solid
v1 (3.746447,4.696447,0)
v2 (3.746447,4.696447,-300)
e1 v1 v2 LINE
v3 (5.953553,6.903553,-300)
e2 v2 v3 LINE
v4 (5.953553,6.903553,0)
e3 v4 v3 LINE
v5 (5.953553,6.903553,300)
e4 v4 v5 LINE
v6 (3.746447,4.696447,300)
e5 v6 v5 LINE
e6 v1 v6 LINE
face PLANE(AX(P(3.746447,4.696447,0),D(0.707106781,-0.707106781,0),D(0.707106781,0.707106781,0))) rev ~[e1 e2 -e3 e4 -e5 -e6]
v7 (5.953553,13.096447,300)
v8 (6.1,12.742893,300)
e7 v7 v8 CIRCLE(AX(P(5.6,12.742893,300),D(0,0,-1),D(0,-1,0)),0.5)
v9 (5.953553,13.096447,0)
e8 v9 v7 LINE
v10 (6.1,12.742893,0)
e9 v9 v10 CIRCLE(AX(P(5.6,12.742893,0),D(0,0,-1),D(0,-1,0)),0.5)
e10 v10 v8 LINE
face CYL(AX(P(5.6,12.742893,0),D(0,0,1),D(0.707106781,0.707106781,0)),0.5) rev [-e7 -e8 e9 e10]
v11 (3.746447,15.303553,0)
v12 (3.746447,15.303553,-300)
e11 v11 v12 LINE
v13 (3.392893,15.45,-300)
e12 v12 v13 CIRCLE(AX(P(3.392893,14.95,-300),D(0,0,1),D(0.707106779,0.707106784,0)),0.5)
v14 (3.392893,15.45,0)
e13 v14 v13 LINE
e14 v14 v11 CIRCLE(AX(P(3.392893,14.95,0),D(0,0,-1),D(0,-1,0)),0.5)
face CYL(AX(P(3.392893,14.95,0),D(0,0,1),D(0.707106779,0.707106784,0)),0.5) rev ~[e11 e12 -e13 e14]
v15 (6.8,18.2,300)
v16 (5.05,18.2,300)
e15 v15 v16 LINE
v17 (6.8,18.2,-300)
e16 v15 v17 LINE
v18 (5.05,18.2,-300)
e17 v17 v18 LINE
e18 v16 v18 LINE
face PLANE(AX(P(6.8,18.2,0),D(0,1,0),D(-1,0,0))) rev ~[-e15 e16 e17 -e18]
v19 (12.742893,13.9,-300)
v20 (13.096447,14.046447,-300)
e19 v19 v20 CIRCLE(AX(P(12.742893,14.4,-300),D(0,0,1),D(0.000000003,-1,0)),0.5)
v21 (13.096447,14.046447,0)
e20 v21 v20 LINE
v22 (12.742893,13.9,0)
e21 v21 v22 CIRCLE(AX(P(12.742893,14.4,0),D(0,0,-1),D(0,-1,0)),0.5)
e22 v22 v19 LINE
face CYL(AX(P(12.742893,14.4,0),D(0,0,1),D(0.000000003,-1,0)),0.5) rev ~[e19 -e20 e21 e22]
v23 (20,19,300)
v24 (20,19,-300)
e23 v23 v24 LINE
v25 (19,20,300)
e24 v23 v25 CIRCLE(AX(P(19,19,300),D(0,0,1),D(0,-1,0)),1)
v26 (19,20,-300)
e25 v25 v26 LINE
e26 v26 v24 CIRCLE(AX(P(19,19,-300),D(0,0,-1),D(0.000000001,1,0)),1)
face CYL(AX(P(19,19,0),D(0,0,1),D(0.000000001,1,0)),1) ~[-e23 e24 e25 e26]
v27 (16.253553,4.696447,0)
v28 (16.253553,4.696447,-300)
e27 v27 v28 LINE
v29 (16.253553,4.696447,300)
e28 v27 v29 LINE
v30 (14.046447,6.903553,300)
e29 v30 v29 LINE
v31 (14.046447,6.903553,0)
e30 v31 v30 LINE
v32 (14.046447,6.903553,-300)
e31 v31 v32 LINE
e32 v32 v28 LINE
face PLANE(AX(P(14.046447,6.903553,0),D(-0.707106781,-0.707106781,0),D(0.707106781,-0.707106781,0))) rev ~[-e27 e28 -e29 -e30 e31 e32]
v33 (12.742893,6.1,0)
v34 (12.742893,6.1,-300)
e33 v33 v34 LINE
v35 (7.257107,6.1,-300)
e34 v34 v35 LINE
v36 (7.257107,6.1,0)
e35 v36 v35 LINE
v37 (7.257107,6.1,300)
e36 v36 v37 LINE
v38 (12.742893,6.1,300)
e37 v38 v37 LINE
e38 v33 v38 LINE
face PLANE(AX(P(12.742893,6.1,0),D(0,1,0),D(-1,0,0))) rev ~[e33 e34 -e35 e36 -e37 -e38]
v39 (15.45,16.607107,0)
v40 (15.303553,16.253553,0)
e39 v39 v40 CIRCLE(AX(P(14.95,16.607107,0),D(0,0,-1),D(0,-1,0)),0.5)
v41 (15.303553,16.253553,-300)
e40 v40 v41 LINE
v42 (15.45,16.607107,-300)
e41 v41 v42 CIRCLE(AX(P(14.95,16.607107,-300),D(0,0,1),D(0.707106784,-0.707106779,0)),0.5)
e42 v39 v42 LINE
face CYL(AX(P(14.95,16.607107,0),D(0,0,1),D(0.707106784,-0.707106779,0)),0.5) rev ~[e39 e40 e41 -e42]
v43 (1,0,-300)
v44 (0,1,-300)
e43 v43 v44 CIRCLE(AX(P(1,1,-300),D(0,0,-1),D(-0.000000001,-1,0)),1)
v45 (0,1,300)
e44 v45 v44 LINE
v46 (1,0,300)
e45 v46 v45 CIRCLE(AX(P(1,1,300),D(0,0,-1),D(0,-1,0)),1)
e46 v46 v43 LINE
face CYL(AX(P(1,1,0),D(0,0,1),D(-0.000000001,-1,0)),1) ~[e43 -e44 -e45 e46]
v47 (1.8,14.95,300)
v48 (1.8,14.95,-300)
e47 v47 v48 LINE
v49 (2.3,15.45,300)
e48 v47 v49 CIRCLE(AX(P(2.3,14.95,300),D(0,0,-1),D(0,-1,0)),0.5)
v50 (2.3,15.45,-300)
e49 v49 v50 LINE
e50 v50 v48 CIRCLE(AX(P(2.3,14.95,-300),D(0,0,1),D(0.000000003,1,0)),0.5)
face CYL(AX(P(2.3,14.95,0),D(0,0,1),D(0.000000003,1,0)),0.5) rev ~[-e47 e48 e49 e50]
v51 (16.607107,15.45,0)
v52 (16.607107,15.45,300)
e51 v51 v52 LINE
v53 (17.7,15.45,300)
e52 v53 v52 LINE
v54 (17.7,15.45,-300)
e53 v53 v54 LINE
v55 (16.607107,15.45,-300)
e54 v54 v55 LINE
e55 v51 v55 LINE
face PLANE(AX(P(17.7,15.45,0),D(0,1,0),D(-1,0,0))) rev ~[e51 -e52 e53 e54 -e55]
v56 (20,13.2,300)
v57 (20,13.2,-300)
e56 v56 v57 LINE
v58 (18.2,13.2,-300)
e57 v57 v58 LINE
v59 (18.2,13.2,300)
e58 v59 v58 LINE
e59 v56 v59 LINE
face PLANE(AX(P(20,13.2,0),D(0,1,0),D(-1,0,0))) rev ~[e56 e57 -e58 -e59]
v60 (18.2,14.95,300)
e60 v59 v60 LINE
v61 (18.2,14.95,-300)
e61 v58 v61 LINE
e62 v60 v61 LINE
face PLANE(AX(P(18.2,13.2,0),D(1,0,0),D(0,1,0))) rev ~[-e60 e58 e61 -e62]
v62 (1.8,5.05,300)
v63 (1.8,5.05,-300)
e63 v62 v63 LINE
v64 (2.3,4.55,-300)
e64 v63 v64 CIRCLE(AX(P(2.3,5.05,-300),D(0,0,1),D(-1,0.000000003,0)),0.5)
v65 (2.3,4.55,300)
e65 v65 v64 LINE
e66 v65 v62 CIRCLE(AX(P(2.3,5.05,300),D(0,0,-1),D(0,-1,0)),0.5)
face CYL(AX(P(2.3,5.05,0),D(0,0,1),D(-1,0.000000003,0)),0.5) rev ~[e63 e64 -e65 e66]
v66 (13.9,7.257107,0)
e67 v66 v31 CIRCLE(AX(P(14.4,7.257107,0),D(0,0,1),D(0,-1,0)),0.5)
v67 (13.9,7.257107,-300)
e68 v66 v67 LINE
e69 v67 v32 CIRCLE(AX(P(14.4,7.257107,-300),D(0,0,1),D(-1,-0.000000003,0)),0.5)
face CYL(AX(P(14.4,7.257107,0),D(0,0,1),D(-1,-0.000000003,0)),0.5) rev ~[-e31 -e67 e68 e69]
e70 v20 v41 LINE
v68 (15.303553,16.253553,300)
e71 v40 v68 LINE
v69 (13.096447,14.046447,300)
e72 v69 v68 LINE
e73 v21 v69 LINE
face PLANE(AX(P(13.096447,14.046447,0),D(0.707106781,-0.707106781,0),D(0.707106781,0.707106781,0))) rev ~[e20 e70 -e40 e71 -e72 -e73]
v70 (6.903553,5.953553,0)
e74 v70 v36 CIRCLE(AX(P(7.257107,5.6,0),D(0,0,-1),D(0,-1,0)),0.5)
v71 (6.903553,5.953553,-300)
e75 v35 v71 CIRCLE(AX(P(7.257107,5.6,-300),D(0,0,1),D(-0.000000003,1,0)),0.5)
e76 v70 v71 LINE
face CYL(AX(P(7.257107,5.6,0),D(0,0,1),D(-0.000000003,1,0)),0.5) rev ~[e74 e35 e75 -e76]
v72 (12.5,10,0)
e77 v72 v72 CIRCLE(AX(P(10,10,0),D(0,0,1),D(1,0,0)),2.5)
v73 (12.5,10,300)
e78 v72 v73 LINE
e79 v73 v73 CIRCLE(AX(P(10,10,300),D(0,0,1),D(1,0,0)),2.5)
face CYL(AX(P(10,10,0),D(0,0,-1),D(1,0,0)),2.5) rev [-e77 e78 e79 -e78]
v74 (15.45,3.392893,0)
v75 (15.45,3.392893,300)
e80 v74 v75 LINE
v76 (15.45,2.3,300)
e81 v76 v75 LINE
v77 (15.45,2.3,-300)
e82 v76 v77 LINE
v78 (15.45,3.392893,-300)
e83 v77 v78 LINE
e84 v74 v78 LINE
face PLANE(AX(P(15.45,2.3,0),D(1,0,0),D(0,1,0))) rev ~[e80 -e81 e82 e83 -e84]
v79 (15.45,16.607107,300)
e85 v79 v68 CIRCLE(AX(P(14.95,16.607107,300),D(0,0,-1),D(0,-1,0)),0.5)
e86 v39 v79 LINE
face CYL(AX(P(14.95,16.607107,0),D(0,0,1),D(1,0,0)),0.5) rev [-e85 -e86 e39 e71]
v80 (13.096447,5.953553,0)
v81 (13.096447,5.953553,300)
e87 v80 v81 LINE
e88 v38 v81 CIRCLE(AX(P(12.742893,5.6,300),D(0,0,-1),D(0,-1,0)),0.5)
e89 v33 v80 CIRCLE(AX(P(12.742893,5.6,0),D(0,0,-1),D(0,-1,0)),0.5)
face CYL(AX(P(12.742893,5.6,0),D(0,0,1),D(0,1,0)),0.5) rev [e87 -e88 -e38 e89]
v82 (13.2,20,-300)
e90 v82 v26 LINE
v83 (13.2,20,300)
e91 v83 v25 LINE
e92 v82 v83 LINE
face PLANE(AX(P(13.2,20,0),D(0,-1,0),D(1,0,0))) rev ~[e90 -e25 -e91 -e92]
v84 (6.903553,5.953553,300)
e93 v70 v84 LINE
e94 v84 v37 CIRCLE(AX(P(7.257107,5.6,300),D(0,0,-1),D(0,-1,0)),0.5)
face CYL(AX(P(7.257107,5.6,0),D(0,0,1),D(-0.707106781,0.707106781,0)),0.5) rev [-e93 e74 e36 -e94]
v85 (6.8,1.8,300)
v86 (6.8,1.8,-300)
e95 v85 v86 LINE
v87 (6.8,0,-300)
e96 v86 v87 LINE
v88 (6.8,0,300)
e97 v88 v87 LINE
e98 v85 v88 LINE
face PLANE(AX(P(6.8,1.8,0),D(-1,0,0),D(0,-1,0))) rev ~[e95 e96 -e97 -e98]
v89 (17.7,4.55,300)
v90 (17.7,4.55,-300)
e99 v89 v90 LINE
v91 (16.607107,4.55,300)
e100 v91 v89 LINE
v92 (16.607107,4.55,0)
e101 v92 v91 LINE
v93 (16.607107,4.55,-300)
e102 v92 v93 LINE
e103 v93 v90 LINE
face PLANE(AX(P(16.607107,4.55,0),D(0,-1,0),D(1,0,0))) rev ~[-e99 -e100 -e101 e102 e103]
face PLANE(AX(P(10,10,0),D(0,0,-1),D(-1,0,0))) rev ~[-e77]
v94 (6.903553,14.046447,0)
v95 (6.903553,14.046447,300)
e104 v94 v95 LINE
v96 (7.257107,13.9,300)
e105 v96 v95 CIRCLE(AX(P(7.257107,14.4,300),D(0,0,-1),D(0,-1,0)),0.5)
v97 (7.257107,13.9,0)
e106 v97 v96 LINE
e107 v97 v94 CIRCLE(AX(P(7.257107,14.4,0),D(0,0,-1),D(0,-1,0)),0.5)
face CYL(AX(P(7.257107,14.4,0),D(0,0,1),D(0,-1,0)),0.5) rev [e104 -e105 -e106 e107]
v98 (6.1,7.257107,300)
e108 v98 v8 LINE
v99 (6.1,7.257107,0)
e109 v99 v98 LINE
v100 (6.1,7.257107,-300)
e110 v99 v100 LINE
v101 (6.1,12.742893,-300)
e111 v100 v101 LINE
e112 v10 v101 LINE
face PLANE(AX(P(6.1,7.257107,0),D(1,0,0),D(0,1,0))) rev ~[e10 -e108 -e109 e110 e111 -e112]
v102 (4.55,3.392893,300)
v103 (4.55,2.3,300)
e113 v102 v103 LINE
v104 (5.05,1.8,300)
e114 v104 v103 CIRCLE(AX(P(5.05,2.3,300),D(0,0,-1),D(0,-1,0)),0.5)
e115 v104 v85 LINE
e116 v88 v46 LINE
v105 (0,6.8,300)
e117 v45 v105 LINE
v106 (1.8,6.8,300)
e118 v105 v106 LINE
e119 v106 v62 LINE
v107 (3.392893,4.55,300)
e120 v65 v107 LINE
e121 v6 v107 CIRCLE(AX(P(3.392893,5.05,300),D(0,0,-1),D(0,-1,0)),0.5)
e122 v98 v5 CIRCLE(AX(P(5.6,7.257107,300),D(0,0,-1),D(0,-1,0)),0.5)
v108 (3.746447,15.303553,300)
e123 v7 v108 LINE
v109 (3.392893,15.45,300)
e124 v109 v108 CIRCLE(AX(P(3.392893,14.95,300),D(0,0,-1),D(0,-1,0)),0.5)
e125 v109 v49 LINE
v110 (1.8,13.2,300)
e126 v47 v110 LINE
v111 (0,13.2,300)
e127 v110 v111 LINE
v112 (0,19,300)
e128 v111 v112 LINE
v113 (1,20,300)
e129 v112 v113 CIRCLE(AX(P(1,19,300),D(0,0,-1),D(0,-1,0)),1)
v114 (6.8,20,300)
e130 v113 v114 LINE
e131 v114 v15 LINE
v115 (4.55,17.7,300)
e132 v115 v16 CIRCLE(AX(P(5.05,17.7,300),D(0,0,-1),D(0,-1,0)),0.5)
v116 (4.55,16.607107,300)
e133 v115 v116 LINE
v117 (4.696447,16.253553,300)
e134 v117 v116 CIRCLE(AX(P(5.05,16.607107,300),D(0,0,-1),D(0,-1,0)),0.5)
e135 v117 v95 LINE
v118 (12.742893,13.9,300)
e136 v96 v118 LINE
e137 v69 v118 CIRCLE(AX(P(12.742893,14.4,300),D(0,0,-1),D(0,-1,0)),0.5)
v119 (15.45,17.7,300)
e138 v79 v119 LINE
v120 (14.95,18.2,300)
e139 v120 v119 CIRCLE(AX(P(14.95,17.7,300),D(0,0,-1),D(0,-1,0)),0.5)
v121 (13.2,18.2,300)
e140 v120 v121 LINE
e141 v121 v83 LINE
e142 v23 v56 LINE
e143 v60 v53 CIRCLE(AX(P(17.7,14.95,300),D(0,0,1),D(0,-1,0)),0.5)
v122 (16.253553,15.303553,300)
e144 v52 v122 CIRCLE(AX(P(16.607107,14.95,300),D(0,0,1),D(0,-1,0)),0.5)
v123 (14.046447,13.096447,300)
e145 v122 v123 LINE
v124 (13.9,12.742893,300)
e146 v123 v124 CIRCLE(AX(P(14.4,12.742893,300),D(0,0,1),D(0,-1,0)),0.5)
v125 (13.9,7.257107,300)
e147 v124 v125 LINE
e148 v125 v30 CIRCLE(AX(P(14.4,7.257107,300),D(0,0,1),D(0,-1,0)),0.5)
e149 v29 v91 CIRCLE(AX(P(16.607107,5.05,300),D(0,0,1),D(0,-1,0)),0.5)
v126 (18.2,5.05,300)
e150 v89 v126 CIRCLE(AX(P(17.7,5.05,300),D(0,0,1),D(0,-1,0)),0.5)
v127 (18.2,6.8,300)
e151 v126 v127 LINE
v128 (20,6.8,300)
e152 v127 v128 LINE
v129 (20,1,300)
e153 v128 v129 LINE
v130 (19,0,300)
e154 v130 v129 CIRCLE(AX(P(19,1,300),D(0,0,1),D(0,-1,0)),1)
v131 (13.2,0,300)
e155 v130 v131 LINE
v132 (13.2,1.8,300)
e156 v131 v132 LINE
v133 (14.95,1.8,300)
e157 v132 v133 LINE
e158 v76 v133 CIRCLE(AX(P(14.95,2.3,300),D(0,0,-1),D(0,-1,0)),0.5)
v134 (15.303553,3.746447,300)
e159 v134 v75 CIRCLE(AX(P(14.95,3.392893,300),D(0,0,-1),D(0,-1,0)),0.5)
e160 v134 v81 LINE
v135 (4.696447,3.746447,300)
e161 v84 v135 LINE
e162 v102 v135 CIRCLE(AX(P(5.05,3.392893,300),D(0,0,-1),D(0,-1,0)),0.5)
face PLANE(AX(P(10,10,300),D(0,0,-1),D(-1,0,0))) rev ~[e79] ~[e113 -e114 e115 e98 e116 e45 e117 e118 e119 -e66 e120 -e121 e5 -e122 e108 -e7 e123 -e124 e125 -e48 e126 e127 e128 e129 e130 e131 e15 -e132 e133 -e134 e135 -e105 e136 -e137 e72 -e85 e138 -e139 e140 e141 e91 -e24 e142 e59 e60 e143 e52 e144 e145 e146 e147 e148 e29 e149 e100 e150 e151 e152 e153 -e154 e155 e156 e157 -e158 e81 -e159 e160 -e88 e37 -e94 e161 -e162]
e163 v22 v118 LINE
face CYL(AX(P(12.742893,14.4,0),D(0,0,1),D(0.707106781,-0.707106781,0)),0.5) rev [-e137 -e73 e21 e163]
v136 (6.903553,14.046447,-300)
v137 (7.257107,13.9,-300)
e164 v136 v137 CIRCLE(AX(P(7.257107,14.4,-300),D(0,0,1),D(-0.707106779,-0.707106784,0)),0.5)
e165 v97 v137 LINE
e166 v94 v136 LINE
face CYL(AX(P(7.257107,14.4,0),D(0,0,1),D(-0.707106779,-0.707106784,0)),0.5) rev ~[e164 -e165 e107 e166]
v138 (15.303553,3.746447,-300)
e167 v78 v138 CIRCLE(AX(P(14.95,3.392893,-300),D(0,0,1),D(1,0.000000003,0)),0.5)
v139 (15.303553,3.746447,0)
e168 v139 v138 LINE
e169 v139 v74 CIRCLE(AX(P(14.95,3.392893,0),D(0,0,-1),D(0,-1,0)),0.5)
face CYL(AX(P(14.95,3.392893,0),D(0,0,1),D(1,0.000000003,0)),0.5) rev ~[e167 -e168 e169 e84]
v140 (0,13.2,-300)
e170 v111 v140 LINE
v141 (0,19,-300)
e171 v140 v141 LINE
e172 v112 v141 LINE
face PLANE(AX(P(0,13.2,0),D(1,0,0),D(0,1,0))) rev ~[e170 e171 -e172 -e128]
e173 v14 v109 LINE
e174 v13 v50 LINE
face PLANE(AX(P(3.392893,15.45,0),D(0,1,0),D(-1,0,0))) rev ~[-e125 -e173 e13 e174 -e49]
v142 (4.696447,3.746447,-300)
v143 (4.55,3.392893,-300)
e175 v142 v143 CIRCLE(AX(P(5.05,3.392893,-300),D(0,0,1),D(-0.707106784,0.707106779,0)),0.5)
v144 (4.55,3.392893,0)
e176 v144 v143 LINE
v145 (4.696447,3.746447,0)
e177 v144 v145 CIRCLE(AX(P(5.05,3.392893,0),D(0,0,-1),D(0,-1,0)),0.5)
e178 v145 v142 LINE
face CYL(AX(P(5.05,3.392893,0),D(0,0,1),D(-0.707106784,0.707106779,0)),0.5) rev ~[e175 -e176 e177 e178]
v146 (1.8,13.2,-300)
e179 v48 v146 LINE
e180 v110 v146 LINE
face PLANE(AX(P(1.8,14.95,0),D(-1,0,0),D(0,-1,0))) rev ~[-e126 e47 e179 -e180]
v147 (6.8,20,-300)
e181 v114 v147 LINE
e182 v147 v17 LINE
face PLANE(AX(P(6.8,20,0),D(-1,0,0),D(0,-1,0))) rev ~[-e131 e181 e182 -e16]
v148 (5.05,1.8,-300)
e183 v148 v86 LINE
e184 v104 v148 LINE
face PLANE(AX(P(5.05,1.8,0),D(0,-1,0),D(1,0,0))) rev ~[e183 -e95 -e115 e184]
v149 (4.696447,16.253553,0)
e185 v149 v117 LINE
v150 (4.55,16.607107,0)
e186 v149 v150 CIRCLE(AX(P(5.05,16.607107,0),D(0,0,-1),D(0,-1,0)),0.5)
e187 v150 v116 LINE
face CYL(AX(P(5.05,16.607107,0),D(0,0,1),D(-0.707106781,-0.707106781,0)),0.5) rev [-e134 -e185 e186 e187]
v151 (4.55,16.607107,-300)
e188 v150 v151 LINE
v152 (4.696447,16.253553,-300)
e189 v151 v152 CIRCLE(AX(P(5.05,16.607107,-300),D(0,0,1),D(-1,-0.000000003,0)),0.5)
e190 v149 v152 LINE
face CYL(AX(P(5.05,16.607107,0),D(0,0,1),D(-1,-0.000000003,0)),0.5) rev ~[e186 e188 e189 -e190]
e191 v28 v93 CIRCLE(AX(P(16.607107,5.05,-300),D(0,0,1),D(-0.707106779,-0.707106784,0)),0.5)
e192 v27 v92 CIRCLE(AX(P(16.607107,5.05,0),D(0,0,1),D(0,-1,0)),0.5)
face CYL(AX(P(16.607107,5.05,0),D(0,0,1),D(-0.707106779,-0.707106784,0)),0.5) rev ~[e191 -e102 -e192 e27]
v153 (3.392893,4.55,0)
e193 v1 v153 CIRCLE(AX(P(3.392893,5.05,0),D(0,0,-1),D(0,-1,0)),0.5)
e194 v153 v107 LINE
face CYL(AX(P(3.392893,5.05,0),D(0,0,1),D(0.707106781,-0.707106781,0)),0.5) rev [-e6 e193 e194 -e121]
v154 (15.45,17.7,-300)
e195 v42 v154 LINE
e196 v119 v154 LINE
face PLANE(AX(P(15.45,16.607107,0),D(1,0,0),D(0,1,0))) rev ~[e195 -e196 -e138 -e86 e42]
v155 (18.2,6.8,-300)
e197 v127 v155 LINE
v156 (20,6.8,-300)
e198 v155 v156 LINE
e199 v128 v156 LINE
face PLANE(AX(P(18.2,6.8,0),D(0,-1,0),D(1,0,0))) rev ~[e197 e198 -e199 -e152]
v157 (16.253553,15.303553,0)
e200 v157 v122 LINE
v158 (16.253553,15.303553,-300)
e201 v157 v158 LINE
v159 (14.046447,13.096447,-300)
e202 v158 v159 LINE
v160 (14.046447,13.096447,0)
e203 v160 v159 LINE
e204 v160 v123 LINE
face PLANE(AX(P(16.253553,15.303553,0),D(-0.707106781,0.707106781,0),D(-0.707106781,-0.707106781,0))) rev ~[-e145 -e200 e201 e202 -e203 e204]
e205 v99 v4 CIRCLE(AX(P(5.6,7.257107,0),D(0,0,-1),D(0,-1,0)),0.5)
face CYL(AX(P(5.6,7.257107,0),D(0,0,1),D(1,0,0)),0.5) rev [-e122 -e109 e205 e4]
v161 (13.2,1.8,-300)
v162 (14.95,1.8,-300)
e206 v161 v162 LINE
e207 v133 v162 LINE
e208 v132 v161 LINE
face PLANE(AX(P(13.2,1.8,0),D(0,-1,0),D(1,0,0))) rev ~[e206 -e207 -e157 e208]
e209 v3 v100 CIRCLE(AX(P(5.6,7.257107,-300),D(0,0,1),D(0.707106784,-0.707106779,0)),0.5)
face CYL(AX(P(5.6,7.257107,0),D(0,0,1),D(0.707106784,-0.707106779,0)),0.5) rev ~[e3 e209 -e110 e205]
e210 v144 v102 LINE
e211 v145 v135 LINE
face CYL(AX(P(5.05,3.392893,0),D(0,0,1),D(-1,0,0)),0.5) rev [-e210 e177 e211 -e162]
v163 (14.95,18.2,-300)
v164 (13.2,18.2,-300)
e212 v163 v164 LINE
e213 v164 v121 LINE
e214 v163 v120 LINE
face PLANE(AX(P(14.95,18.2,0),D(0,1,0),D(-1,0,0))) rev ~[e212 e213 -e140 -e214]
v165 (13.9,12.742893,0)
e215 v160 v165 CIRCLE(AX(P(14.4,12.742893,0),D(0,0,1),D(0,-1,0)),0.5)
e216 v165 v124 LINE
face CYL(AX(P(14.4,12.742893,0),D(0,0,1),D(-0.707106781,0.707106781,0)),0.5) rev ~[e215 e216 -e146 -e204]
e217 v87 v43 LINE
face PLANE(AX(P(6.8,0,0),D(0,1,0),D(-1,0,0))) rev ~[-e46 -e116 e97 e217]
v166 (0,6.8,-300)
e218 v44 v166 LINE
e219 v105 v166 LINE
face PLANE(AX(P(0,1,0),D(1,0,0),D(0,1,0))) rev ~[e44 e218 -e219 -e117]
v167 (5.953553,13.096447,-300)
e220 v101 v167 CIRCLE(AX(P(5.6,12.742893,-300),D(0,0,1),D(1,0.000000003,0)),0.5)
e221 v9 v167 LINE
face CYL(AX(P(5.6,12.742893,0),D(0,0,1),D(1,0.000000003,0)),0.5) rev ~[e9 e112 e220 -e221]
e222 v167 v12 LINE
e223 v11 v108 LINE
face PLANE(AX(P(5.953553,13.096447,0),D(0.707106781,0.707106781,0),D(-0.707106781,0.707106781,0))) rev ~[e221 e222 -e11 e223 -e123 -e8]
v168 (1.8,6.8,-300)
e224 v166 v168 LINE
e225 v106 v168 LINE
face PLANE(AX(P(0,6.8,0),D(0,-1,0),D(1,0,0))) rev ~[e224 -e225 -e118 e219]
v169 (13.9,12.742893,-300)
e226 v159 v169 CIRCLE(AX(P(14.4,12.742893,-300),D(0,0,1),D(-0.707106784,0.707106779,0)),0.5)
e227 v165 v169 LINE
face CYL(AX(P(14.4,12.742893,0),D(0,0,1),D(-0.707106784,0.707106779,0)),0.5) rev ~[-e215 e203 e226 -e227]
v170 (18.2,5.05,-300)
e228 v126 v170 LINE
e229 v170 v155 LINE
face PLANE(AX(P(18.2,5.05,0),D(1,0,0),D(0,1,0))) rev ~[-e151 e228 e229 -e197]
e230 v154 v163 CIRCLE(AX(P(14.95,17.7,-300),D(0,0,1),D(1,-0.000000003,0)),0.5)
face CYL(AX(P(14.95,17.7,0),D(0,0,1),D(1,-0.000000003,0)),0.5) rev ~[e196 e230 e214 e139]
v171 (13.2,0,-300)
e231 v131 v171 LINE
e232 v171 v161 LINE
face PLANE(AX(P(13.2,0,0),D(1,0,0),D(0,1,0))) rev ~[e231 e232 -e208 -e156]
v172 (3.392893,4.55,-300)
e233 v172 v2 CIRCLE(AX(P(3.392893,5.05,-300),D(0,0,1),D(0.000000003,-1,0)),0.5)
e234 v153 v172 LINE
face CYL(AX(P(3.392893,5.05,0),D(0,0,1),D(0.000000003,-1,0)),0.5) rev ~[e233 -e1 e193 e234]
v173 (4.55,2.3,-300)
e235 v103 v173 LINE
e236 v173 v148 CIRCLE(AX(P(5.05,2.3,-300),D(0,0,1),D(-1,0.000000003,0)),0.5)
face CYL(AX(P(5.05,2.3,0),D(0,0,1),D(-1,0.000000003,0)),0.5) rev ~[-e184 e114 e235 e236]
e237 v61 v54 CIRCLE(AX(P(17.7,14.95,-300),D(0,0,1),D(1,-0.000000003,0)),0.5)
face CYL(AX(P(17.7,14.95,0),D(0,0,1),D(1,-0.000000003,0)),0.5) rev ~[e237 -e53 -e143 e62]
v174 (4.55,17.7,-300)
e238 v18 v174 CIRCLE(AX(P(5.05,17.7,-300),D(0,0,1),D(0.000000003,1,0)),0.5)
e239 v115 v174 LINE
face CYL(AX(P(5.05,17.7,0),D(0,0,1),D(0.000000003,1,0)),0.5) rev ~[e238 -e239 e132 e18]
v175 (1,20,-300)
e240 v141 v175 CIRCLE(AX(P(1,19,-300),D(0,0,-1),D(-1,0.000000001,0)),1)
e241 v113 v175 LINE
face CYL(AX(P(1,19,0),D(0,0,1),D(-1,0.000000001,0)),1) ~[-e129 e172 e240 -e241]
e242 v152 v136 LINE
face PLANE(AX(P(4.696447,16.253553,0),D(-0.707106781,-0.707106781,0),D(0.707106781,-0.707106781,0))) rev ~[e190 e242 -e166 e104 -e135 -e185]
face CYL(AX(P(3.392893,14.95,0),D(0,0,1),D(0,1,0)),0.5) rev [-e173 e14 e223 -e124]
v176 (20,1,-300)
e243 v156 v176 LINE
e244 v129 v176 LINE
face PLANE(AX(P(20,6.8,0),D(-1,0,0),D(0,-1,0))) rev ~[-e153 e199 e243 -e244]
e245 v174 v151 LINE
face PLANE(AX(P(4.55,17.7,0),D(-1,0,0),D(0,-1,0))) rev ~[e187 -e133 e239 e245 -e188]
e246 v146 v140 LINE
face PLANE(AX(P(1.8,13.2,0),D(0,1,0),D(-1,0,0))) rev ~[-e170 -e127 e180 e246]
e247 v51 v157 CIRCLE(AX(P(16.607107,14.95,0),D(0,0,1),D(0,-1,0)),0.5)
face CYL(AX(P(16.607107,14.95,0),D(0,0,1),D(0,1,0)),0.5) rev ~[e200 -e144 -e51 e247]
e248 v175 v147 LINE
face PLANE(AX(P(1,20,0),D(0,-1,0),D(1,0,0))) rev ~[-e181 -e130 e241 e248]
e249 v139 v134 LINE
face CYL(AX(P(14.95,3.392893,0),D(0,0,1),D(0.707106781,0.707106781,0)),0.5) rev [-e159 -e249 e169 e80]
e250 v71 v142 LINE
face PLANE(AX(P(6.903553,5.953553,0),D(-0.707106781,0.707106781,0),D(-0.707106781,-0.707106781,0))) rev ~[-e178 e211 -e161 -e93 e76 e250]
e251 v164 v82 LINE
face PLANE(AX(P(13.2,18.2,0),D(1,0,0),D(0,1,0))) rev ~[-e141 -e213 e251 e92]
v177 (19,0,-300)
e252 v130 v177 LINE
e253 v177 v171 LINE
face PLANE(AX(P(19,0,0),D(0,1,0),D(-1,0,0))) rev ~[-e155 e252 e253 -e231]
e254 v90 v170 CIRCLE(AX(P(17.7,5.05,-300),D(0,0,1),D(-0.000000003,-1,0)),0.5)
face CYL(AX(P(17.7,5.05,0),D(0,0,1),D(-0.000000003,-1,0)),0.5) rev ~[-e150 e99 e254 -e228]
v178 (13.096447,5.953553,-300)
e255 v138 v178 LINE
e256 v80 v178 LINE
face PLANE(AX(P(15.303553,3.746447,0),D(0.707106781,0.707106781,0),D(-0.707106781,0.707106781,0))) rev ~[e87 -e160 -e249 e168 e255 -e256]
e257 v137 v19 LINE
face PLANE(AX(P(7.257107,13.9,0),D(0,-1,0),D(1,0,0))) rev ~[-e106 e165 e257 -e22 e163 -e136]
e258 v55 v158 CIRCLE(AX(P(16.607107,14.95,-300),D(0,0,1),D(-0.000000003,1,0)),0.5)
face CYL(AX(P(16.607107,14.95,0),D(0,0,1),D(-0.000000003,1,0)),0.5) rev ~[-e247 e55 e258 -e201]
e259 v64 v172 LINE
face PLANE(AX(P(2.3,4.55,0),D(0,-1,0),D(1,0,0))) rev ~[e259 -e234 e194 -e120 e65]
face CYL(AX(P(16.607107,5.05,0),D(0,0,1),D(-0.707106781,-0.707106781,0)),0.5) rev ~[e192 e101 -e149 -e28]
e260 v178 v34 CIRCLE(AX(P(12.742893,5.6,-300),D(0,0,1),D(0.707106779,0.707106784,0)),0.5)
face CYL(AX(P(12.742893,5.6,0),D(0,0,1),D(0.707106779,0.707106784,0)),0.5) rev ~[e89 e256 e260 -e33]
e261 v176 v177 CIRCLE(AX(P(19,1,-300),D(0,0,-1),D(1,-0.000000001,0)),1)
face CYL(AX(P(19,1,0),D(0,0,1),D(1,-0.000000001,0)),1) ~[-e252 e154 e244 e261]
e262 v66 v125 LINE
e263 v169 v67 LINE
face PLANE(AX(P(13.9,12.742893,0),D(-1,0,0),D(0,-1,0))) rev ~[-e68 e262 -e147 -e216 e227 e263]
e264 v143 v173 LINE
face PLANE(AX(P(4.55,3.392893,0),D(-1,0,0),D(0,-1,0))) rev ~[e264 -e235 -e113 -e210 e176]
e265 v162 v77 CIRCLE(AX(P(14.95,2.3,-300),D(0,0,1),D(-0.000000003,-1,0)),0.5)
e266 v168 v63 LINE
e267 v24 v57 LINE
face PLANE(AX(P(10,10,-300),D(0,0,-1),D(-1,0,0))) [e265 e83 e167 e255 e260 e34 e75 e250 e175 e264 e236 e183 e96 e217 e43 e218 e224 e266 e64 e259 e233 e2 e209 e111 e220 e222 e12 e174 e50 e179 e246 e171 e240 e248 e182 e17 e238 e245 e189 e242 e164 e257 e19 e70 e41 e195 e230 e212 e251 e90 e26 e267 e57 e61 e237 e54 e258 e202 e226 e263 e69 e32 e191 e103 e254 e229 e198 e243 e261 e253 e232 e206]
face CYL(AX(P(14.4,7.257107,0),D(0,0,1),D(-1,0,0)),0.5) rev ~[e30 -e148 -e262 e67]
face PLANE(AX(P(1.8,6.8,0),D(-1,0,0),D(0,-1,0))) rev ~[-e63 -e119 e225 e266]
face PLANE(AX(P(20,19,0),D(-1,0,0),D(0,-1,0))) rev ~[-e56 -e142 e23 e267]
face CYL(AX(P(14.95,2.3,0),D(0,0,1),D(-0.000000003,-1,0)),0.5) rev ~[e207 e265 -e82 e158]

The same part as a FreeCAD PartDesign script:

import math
import FreeCAD as App
import Part
import Sketcher
from FreeCAD import Vector
Q = App.Units.Quantity


def edges_at(feature, points):
    """Names of the edges that pass closest to the given points."""
    edges = feature.Shape.Edges
    near = lambda p: min(range(len(edges)), key=lambda i: edges[i].distToShape(Part.Vertex(*p))[0])
    return sorted({f"Edge{near(p) + 1}" for p in points})


def add_polygon(sketch, points):
    """Adds a closed chain of lines whose ends are joined by coincident constraints."""
    first, n = sketch.GeometryCount, len(points)
    for a, b in zip(points, points[1:] + points[:1]):
        sketch.addGeometry(Part.LineSegment(App.Vector(*a, 0), App.Vector(*b, 0)), False)
    for i in range(n):
        sketch.addConstraint(Sketcher.Constraint("Coincident", first + i, 2, first + (i + 1) % n, 1))

doc = App.newDocument("Part")
body = doc.addObject("PartDesign::Body", "Body")

sketch1 = body.newObject("Sketcher::SketchObject", "Sketch")
sketch1.AttachmentSupport = (doc.getObject("XY_Plane"), [""])
sketch1.MapMode = "FlatFace"
add_polygon(sketch1, [(13.2, 1.8), (13.2, 0), (20, 0), (20, 6.8), (18.2, 6.8), (18.2, 4.5), (16.4, 4.5), (13.9, 7), (13.9, 12.9), (16.4, 15.4), (18.2, 15.4), (18.2, 13.2), (20, 13.2), (20, 20), (13.2, 20), (13.2, 18.2), (15.4, 18.2), (15.4, 16.4), (12.9, 13.9), (7, 13.9), (4.5, 16.4), (4.5, 18.2), (6.8, 18.2), (6.8, 20), (0, 20), (0, 13.2), (1.8, 13.2), (1.8, 15.4), (3.6, 15.4), (6.1, 12.9), (6.1, 7), (3.6, 4.5), (1.8, 4.5), (1.8, 6.8), (0, 6.8), (0, 0), (6.8, 0), (6.8, 1.8), (4.5, 1.8), (4.5, 3.6), (7, 6.1), (12.9, 6.1), (15.4, 3.6), (15.4, 1.8)])
sketch1.addGeometry(Part.Circle(Vector(10, 10, 0), Vector(0, 0, 1), 2.5), False)
sketch1.addConstraint([
    Sketcher.Constraint("Vertical", 0),
    Sketcher.Constraint("Horizontal", 1),
    Sketcher.Constraint("Vertical", 2),
    Sketcher.Constraint("Horizontal", 3),
    Sketcher.Constraint("Vertical", 4),
    Sketcher.Constraint("Horizontal", 5),
    Sketcher.Constraint("Vertical", 7),
    Sketcher.Constraint("Horizontal", 9),
    Sketcher.Constraint("Vertical", 10),
    Sketcher.Constraint("Horizontal", 11),
    Sketcher.Constraint("Vertical", 12),
    Sketcher.Constraint("Horizontal", 13),
    Sketcher.Constraint("Vertical", 14),
    Sketcher.Constraint("Horizontal", 15),
    Sketcher.Constraint("Vertical", 16),
    Sketcher.Constraint("Horizontal", 18),
    Sketcher.Constraint("Vertical", 20),
    Sketcher.Constraint("Horizontal", 21),
    Sketcher.Constraint("Vertical", 22),
    Sketcher.Constraint("Horizontal", 23),
    Sketcher.Constraint("Vertical", 24),
    Sketcher.Constraint("Horizontal", 25),
    Sketcher.Constraint("Vertical", 26),
    Sketcher.Constraint("Horizontal", 27),
    Sketcher.Constraint("Vertical", 29),
    Sketcher.Constraint("Horizontal", 31),
    Sketcher.Constraint("Vertical", 32),
    Sketcher.Constraint("Horizontal", 33),
    Sketcher.Constraint("Vertical", 34),
    Sketcher.Constraint("Horizontal", 35),
    Sketcher.Constraint("Vertical", 36),
    Sketcher.Constraint("Horizontal", 37),
    Sketcher.Constraint("Vertical", 38),
    Sketcher.Constraint("Horizontal", 40),
    Sketcher.Constraint("Vertical", 42),
    Sketcher.Constraint("Horizontal", 43),
    Sketcher.Constraint("Coincident", 34, 2, -1, 1),
    Sketcher.Constraint("PointOnObject", 0, 2, -1),
    Sketcher.Constraint("PointOnObject", 23, 2, -2),
    Sketcher.Constraint("Perpendicular", 6, 8),
    Sketcher.Constraint("Parallel", 8, 17),
    Sketcher.Constraint("Perpendicular", 17, 19),
    Sketcher.Constraint("Parallel", 19, 28),
    Sketcher.Constraint("Perpendicular", 28, 30),
    Sketcher.Constraint("Parallel", 30, 39),
    Sketcher.Constraint("Perpendicular", 39, 41),
    Sketcher.Constraint("Horizontal", 16, 2, 19, 2),
    Sketcher.Constraint("Horizontal", 15, 2, 20, 2),
    Sketcher.Constraint("Horizontal", 13, 2, 22, 2),
    Sketcher.Constraint("Horizontal", 11, 2, 24, 2),
    Sketcher.Constraint("Horizontal", 9, 2, 26, 2),
    Sketcher.Constraint("Horizontal", 7, 2, 28, 2),
    Sketcher.Constraint("Horizontal", 6, 2, 29, 2),
    Sketcher.Constraint("Horizontal", 5, 2, 30, 2),
    Sketcher.Constraint("Horizontal", 3, 2, 32, 2),
    Sketcher.Constraint("Horizontal", 38, 2, 41, 2),
    Sketcher.Constraint("Horizontal", 37, 2, 42, 2),
    Sketcher.Constraint("Vertical", 5, 2, 8, 2),
    Sketcher.Constraint("Vertical", 4, 2, 9, 2),
    Sketcher.Constraint("Vertical", 2, 2, 11, 2),
    Sketcher.Constraint("Vertical", 0, 2, 13, 2),
    Sketcher.Constraint("Vertical", 27, 2, 30, 2),
    Sketcher.Constraint("Vertical", 26, 2, 31, 2),
    Sketcher.Constraint("Vertical", 22, 2, 35, 2),
    Sketcher.Constraint("Vertical", 20, 2, 37, 2),
    Sketcher.Constraint("Vertical", 18, 2, 39, 2),
    Sketcher.Constraint("Vertical", 17, 2, 40, 2),
    Sketcher.Constraint("Equal", 3, 5),
    Sketcher.Constraint("Equal", 15, 21),
    Sketcher.Constraint("Equal", 13, 23),
    Sketcher.Constraint("Equal", 11, 25),
    Sketcher.Constraint("Equal", 25, 27),
    Sketcher.Constraint("Equal", 33, 0),
    Sketcher.Constraint("Equal", 35, 2),
    Sketcher.Constraint("Equal", 43, 4),
    Sketcher.Constraint("Equal", 40, 7),
    Sketcher.Constraint("Equal", 4, 10),
    Sketcher.Constraint("Equal", 2, 12),
    Sketcher.Constraint("Equal", 0, 14),
    Sketcher.Constraint("Equal", 14, 16),
    Sketcher.Constraint("Equal", 36, 38),
    Sketcher.Constraint("Equal", 8, 17),
    Sketcher.Constraint("Diameter", 44, Q("5 mm")),
    Sketcher.Constraint("DistanceX", 1, 1, 1, 2, Q("6.8 mm")),
    Sketcher.Constraint("DistanceX", 3, 2, 3, 1, Q("1.8 mm")),
    Sketcher.Constraint("DistanceX", 18, 2, 18, 1, Q("5.9 mm")),
    Sketcher.Constraint("DistanceX", -1, 1, 44, 3, Q("10 mm")),
    Sketcher.Constraint("DistanceY", -1, 1, 44, 3, Q("10 mm")),
    Sketcher.Constraint("DistanceX", -1, 1, 1, 2, Q("20 mm")),
    Sketcher.Constraint("DistanceX", 15, 1, 15, 2, Q("2.25 mm")),
])
pad1 = body.newObject("PartDesign::Pad", "Pad")
pad1.Profile = sketch1
pad1.Length = 300
doc.recompute()

fillet = body.newObject("PartDesign::Fillet", "Fillet")
fillet.Base = (pad1, edges_at(pad1, [
    (0, 0, 150),
    (0, 20, 150),
    (20, 20, 150),
    (20, 0, 150),
]))
fillet.Radius = 1
doc.recompute()

fillet2 = body.newObject("PartDesign::Fillet", "Fillet001")
fillet2.Base = (fillet, edges_at(fillet, [
    (4.55, 18.2, 150),
    (4.55, 16.4, 150),
    (7.05, 13.9, 150),
    (12.95, 13.9, 150),
    (15.45, 16.4, 150),
    (15.45, 18.2, 150),
]))
fillet2.Radius = 0.5
doc.recompute()

fillet3 = body.newObject("PartDesign::Fillet", "Fillet002")
fillet3.Base = (fillet2, edges_at(fillet2, [
    (18.2, 15.45, 150),
    (16.4, 15.45, 150),
    (13.9, 12.95, 150),
    (13.9, 7.05, 150),
    (16.4, 4.55, 150),
    (18.2, 4.55, 150),
]))
fillet3.Radius = 0.5
doc.recompute()

fillet4 = body.newObject("PartDesign::Fillet", "Fillet003")
fillet4.Base = (fillet3, edges_at(fillet3, [
    (1.8, 4.55, 150),
    (3.6, 4.55, 150),
    (6.1, 7.05, 150),
    (6.1, 12.95, 150),
    (3.6, 15.45, 150),
    (1.8, 15.45, 150),
]))
fillet4.Radius = 0.5
doc.recompute()

fillet5 = body.newObject("PartDesign::Fillet", "Fillet004")
fillet5.Base = (fillet4, edges_at(fillet4, [
    (15.45, 1.8, 150),
    (15.45, 3.6, 150),
    (12.95, 6.1, 150),
    (7.05, 6.1, 150),
    (4.55, 3.6, 150),
    (4.55, 1.8, 150),
]))
fillet5.Radius = 0.5

sketch2 = body.newObject("Sketcher::SketchObject", "Sketch001")
sketch2.AttachmentSupport = (doc.getObject("XY_Plane"), [""])
sketch2.MapMode = "FlatFace"
sketch2.addGeometry([
    Part.LineSegment(Vector(13.2, 20, 0), Vector(19, 20, 0)),
    Part.ArcOfCircle(Part.Circle(Vector(19, 19, 0), Vector(0, 0, 1), 1), math.radians(0), math.radians(90)),
    Part.LineSegment(Vector(20, 19, 0), Vector(20, 13.2, 0)),
    Part.LineSegment(Vector(20, 13.2, 0), Vector(18.2, 13.2, 0)),
    Part.LineSegment(Vector(18.2, 13.2, 0), Vector(18.2, 14.95, 0)),
    Part.ArcOfCircle(Part.Circle(Vector(17.7, 14.95, 0), Vector(0, 0, 1), 0.5), math.radians(0), math.radians(90)),
    Part.LineSegment(Vector(17.7, 15.45, 0), Vector(16.61, 15.45, 0)),
    Part.ArcOfCircle(Part.Circle(Vector(16.61, 14.95, 0), Vector(0, 0, 1), 0.5), math.radians(90), math.radians(135)),
    Part.LineSegment(Vector(16.25, 15.3, 0), Vector(14.05, 13.1, 0)),
    Part.ArcOfCircle(Part.Circle(Vector(14.4, 12.74, 0), Vector(0, 0, 1), 0.5), math.radians(135), math.radians(180)),
    Part.LineSegment(Vector(13.9, 12.74, 0), Vector(13.9, 7.26, 0)),
    Part.ArcOfCircle(Part.Circle(Vector(14.4, 7.26, 0), Vector(0, 0, 1), 0.5), math.radians(-180), math.radians(-135)),
    Part.LineSegment(Vector(14.05, 6.9, 0), Vector(16.25, 4.7, 0)),
    Part.ArcOfCircle(Part.Circle(Vector(16.61, 5.05, 0), Vector(0, 0, 1), 0.5), math.radians(-135), math.radians(-90)),
    Part.LineSegment(Vector(16.61, 4.55, 0), Vector(17.7, 4.55, 0)),
    Part.ArcOfCircle(Part.Circle(Vector(17.7, 5.05, 0), Vector(0, 0, 1), 0.5), math.radians(-90), math.radians(0)),
    Part.LineSegment(Vector(18.2, 5.05, 0), Vector(18.2, 6.8, 0)),
    Part.LineSegment(Vector(18.2, 6.8, 0), Vector(20, 6.8, 0)),
    Part.LineSegment(Vector(20, 6.8, 0), Vector(20, 1, 0)),
    Part.ArcOfCircle(Part.Circle(Vector(19, 1, 0), Vector(0, 0, 1), 1), math.radians(-90), math.radians(0)),
    Part.LineSegment(Vector(19, 0, 0), Vector(13.2, 0, 0)),
    Part.LineSegment(Vector(13.2, 0, 0), Vector(13.2, 1.8, 0)),
    Part.LineSegment(Vector(13.2, 1.8, 0), Vector(14.95, 1.8, 0)),
    Part.ArcOfCircle(Part.Circle(Vector(14.95, 2.3, 0), Vector(0, 0, 1), 0.5), math.radians(-90), math.radians(0)),
    Part.LineSegment(Vector(15.45, 2.3, 0), Vector(15.45, 3.39, 0)),
    Part.ArcOfCircle(Part.Circle(Vector(14.95, 3.39, 0), Vector(0, 0, 1), 0.5), math.radians(0), math.radians(45)),
    Part.LineSegment(Vector(15.3, 3.75, 0), Vector(13.1, 5.95, 0)),
    Part.ArcOfCircle(Part.Circle(Vector(12.74, 5.6, 0), Vector(0, 0, 1), 0.5), math.radians(45), math.radians(90)),
    Part.LineSegment(Vector(12.74, 6.1, 0), Vector(7.26, 6.1, 0)),
    Part.ArcOfCircle(Part.Circle(Vector(7.26, 5.6, 0), Vector(0, 0, 1), 0.5), math.radians(90), math.radians(135)),
    Part.LineSegment(Vector(6.9, 5.95, 0), Vector(4.7, 3.75, 0)),
    Part.ArcOfCircle(Part.Circle(Vector(5.05, 3.39, 0), Vector(0, 0, 1), 0.5), math.radians(135), math.radians(180)),
    Part.LineSegment(Vector(4.55, 3.39, 0), Vector(4.55, 2.3, 0)),
    Part.ArcOfCircle(Part.Circle(Vector(5.05, 2.3, 0), Vector(0, 0, 1), 0.5), math.radians(180), math.radians(270)),
    Part.LineSegment(Vector(5.05, 1.8, 0), Vector(6.8, 1.8, 0)),
    Part.LineSegment(Vector(6.8, 1.8, 0), Vector(6.8, 0, 0)),
    Part.LineSegment(Vector(6.8, 0, 0), Vector(1, 0, 0)),
    Part.ArcOfCircle(Part.Circle(Vector(1, 1, 0), Vector(0, 0, 1), 1), math.radians(-180), math.radians(-90)),
    Part.LineSegment(Vector(0, 1, 0), Vector(0, 6.8, 0)),
    Part.LineSegment(Vector(0, 6.8, 0), Vector(1.8, 6.8, 0)),
    Part.LineSegment(Vector(1.8, 6.8, 0), Vector(1.8, 5.05, 0)),
    Part.ArcOfCircle(Part.Circle(Vector(2.3, 5.05, 0), Vector(0, 0, 1), 0.5), math.radians(180), math.radians(270)),
    Part.LineSegment(Vector(2.3, 4.55, 0), Vector(3.39, 4.55, 0)),
    Part.ArcOfCircle(Part.Circle(Vector(3.39, 5.05, 0), Vector(0, 0, 1), 0.5), math.radians(-90), math.radians(-45)),
    Part.LineSegment(Vector(3.75, 4.7, 0), Vector(5.95, 6.9, 0)),
    Part.ArcOfCircle(Part.Circle(Vector(5.6, 7.26, 0), Vector(0, 0, 1), 0.5), math.radians(-45), math.radians(0)),
    Part.LineSegment(Vector(6.1, 7.26, 0), Vector(6.1, 12.74, 0)),
    Part.ArcOfCircle(Part.Circle(Vector(5.6, 12.74, 0), Vector(0, 0, 1), 0.5), math.radians(0), math.radians(45)),
    Part.LineSegment(Vector(5.95, 13.1, 0), Vector(3.75, 15.3, 0)),
    Part.ArcOfCircle(Part.Circle(Vector(3.39, 14.95, 0), Vector(0, 0, 1), 0.5), math.radians(45), math.radians(90)),
    Part.LineSegment(Vector(3.39, 15.45, 0), Vector(2.3, 15.45, 0)),
    Part.ArcOfCircle(Part.Circle(Vector(2.3, 14.95, 0), Vector(0, 0, 1), 0.5), math.radians(90), math.radians(180)),
    Part.LineSegment(Vector(1.8, 14.95, 0), Vector(1.8, 13.2, 0)),
    Part.LineSegment(Vector(1.8, 13.2, 0), Vector(0, 13.2, 0)),
    Part.LineSegment(Vector(0, 13.2, 0), Vector(0, 19, 0)),
    Part.ArcOfCircle(Part.Circle(Vector(1, 19, 0), Vector(0, 0, 1), 1), math.radians(90), math.radians(180)),
    Part.LineSegment(Vector(1, 20, 0), Vector(6.8, 20, 0)),
    Part.LineSegment(Vector(6.8, 20, 0), Vector(6.8, 18.2, 0)),
    Part.LineSegment(Vector(6.8, 18.2, 0), Vector(5.05, 18.2, 0)),
    Part.ArcOfCircle(Part.Circle(Vector(5.05, 17.7, 0), Vector(0, 0, 1), 0.5), math.radians(90), math.radians(180)),
    Part.LineSegment(Vector(4.55, 17.7, 0), Vector(4.55, 16.61, 0)),
    Part.ArcOfCircle(Part.Circle(Vector(5.05, 16.61, 0), Vector(0, 0, 1), 0.5), math.radians(-180), math.radians(-135)),
    Part.LineSegment(Vector(4.7, 16.25, 0), Vector(6.9, 14.05, 0)),
    Part.ArcOfCircle(Part.Circle(Vector(7.26, 14.4, 0), Vector(0, 0, 1), 0.5), math.radians(-135), math.radians(-90)),
    Part.LineSegment(Vector(7.26, 13.9, 0), Vector(12.74, 13.9, 0)),
    Part.ArcOfCircle(Part.Circle(Vector(12.74, 14.4, 0), Vector(0, 0, 1), 0.5), math.radians(-90), math.radians(-45)),
    Part.LineSegment(Vector(13.1, 14.05, 0), Vector(15.3, 16.25, 0)),
    Part.ArcOfCircle(Part.Circle(Vector(14.95, 16.61, 0), Vector(0, 0, 1), 0.5), math.radians(-45), math.radians(0)),
    Part.LineSegment(Vector(15.45, 16.61, 0), Vector(15.45, 17.7, 0)),
    Part.ArcOfCircle(Part.Circle(Vector(14.95, 17.7, 0), Vector(0, 0, 1), 0.5), math.radians(0), math.radians(90)),
    Part.LineSegment(Vector(14.95, 18.2, 0), Vector(13.2, 18.2, 0)),
    Part.LineSegment(Vector(13.2, 18.2, 0), Vector(13.2, 20, 0)),
], False)
sketch2.addConstraint([
    Sketcher.Constraint("Tangent", 0, 2, 1, 2),
    Sketcher.Constraint("Tangent", 1, 1, 2, 1),
    Sketcher.Constraint("Coincident", 2, 2, 3, 1),
    Sketcher.Constraint("Coincident", 3, 2, 4, 1),
    Sketcher.Constraint("Tangent", 4, 2, 5, 1),
    Sketcher.Constraint("Tangent", 5, 2, 6, 1),
    Sketcher.Constraint("Tangent", 6, 2, 7, 1),
    Sketcher.Constraint("Tangent", 7, 2, 8, 1),
    Sketcher.Constraint("Tangent", 8, 2, 9, 1),
    Sketcher.Constraint("Tangent", 9, 2, 10, 1),
    Sketcher.Constraint("Tangent", 10, 2, 11, 1),
    Sketcher.Constraint("Tangent", 11, 2, 12, 1),
    Sketcher.Constraint("Tangent", 12, 2, 13, 1),
    Sketcher.Constraint("Tangent", 13, 2, 14, 1),
    Sketcher.Constraint("Tangent", 14, 2, 15, 1),
    Sketcher.Constraint("Tangent", 15, 2, 16, 1),
    Sketcher.Constraint("Coincident", 16, 2, 17, 1),
    Sketcher.Constraint("Coincident", 17, 2, 18, 1),
    Sketcher.Constraint("Tangent", 18, 2, 19, 2),
    Sketcher.Constraint("Tangent", 19, 1, 20, 1),
    Sketcher.Constraint("Coincident", 20, 2, 21, 1),
    Sketcher.Constraint("Coincident", 21, 2, 22, 1),
    Sketcher.Constraint("Tangent", 22, 2, 23, 1),
    Sketcher.Constraint("Tangent", 23, 2, 24, 1),
    Sketcher.Constraint("Tangent", 24, 2, 25, 1),
    Sketcher.Constraint("Tangent", 25, 2, 26, 1),
    Sketcher.Constraint("Tangent", 26, 2, 27, 1),
    Sketcher.Constraint("Tangent", 27, 2, 28, 1),
    Sketcher.Constraint("Tangent", 28, 2, 29, 1),
    Sketcher.Constraint("Tangent", 29, 2, 30, 1),
    Sketcher.Constraint("Tangent", 30, 2, 31, 1),
    Sketcher.Constraint("Tangent", 31, 2, 32, 1),
    Sketcher.Constraint("Tangent", 32, 2, 33, 1),
    Sketcher.Constraint("Tangent", 33, 2, 34, 1),
    Sketcher.Constraint("Coincident", 34, 2, 35, 1),
    Sketcher.Constraint("Coincident", 35, 2, 36, 1),
    Sketcher.Constraint("Tangent", 36, 2, 37, 2),
    Sketcher.Constraint("Tangent", 37, 1, 38, 1),
    Sketcher.Constraint("Coincident", 38, 2, 39, 1),
    Sketcher.Constraint("Coincident", 39, 2, 40, 1),
    Sketcher.Constraint("Tangent", 40, 2, 41, 1),
    Sketcher.Constraint("Tangent", 41, 2, 42, 1),
    Sketcher.Constraint("Tangent", 42, 2, 43, 1),
    Sketcher.Constraint("Tangent", 43, 2, 44, 1),
    Sketcher.Constraint("Tangent", 44, 2, 45, 1),
    Sketcher.Constraint("Tangent", 45, 2, 46, 1),
    Sketcher.Constraint("Tangent", 46, 2, 47, 1),
    Sketcher.Constraint("Tangent", 47, 2, 48, 1),
    Sketcher.Constraint("Tangent", 48, 2, 49, 1),
    Sketcher.Constraint("Tangent", 49, 2, 50, 1),
    Sketcher.Constraint("Tangent", 50, 2, 51, 1),
    Sketcher.Constraint("Tangent", 51, 2, 52, 1),
    Sketcher.Constraint("Coincident", 52, 2, 53, 1),
    Sketcher.Constraint("Coincident", 53, 2, 54, 1),
    Sketcher.Constraint("Tangent", 54, 2, 55, 2),
    Sketcher.Constraint("Tangent", 55, 1, 56, 1),
    Sketcher.Constraint("Coincident", 56, 2, 57, 1),
    Sketcher.Constraint("Coincident", 57, 2, 58, 1),
    Sketcher.Constraint("Tangent", 58, 2, 59, 1),
    Sketcher.Constraint("Tangent", 59, 2, 60, 1),
    Sketcher.Constraint("Tangent", 60, 2, 61, 1),
    Sketcher.Constraint("Tangent", 61, 2, 62, 1),
    Sketcher.Constraint("Tangent", 62, 2, 63, 1),
    Sketcher.Constraint("Tangent", 63, 2, 64, 1),
    Sketcher.Constraint("Tangent", 64, 2, 65, 1),
    Sketcher.Constraint("Tangent", 65, 2, 66, 1),
    Sketcher.Constraint("Tangent", 66, 2, 67, 1),
    Sketcher.Constraint("Tangent", 67, 2, 68, 1),
    Sketcher.Constraint("Tangent", 68, 2, 69, 1),
    Sketcher.Constraint("Tangent", 69, 2, 70, 1),
    Sketcher.Constraint("Coincident", 70, 2, 71, 1),
    Sketcher.Constraint("Coincident", 71, 2, 0, 1),
    Sketcher.Constraint("Horizontal", 0),
    Sketcher.Constraint("Vertical", 2),
    Sketcher.Constraint("Horizontal", 3),
    Sketcher.Constraint("Vertical", 4),
    Sketcher.Constraint("Horizontal", 6),
    Sketcher.Constraint("Vertical", 10),
    Sketcher.Constraint("Horizontal", 14),
    Sketcher.Constraint("Vertical", 16),
    Sketcher.Constraint("Horizontal", 17),
    Sketcher.Constraint("Vertical", 18),
    Sketcher.Constraint("Horizontal", 20),
    Sketcher.Constraint("Vertical", 21),
    Sketcher.Constraint("Horizontal", 22),
    Sketcher.Constraint("Vertical", 24),
    Sketcher.Constraint("Horizontal", 28),
    Sketcher.Constraint("Vertical", 32),
    Sketcher.Constraint("Horizontal", 34),
    Sketcher.Constraint("Vertical", 35),
    Sketcher.Constraint("Horizontal", 36),
    Sketcher.Constraint("Vertical", 38),
    Sketcher.Constraint("Horizontal", 39),
    Sketcher.Constraint("Vertical", 40),
    Sketcher.Constraint("Horizontal", 42),
    Sketcher.Constraint("Vertical", 46),
    Sketcher.Constraint("Horizontal", 50),
    Sketcher.Constraint("Vertical", 52),
    Sketcher.Constraint("Horizontal", 53),
    Sketcher.Constraint("Vertical", 54),
    Sketcher.Constraint("Horizontal", 56),
    Sketcher.Constraint("Vertical", 57),
    Sketcher.Constraint("Horizontal", 58),
    Sketcher.Constraint("Vertical", 60),
    Sketcher.Constraint("Horizontal", 64),
    Sketcher.Constraint("Vertical", 68),
    Sketcher.Constraint("Horizontal", 70),
    Sketcher.Constraint("Vertical", 71),
    Sketcher.Constraint("Equal", 5, 7),
    Sketcher.Constraint("Equal", 7, 9),
    Sketcher.Constraint("Equal", 9, 11),
    Sketcher.Constraint("Equal", 11, 13),
    Sketcher.Constraint("Equal", 13, 15),
    Sketcher.Constraint("Equal", 1, 19),
    Sketcher.Constraint("Equal", 15, 23),
    Sketcher.Constraint("Equal", 23, 25),
    Sketcher.Constraint("Equal", 25, 27),
    Sketcher.Constraint("Equal", 27, 29),
    Sketcher.Constraint("Equal", 29, 31),
    Sketcher.Constraint("Equal", 31, 33),
    Sketcher.Constraint("Equal", 19, 37),
    Sketcher.Constraint("Equal", 33, 41),
    Sketcher.Constraint("Equal", 41, 43),
    Sketcher.Constraint("Equal", 43, 45),
    Sketcher.Constraint("Equal", 45, 47),
    Sketcher.Constraint("Equal", 47, 49),
    Sketcher.Constraint("Equal", 49, 51),
    Sketcher.Constraint("Equal", 37, 55),
    Sketcher.Constraint("Equal", 51, 59),
    Sketcher.Constraint("Equal", 59, 61),
    Sketcher.Constraint("Equal", 61, 63),
    Sketcher.Constraint("Equal", 63, 65),
    Sketcher.Constraint("Equal", 65, 67),
    Sketcher.Constraint("Equal", 67, 69),
    Sketcher.Constraint("PointOnObject", 19, 1, -1),
    Sketcher.Constraint("PointOnObject", 35, 2, -1),
    Sketcher.Constraint("PointOnObject", 37, 1, -2),
    Sketcher.Constraint("PointOnObject", 53, 2, -2),
    Sketcher.Constraint("Perpendicular", 8, 12),
    Sketcher.Constraint("Parallel", 12, 26),
    Sketcher.Constraint("Perpendicular", 26, 30),
    Sketcher.Constraint("Parallel", 30, 44),
    Sketcher.Constraint("Perpendicular", 44, 48),
    Sketcher.Constraint("Parallel", 48, 62),
    Sketcher.Constraint("Perpendicular", 62, 66),
    Sketcher.Constraint("Horizontal", 25, 3, 31, 3),
    Sketcher.Constraint("Horizontal", 23, 3, 33, 3),
    Sketcher.Constraint("Horizontal", 15, 3, 41, 3),
    Sketcher.Constraint("Horizontal", 11, 3, 45, 3),
    Sketcher.Constraint("Horizontal", 9, 3, 47, 3),
    Sketcher.Constraint("Horizontal", 7, 3, 49, 3),
    Sketcher.Constraint("Horizontal", 1, 3, 55, 3),
    Sketcher.Constraint("Horizontal", 61, 3, 67, 3),
    Sketcher.Constraint("Horizontal", 59, 3, 69, 3),
    Sketcher.Constraint("Horizontal", 26, 2, 29, 2),
    Sketcher.Constraint("Horizontal", 17, 2, 38, 2),
    Sketcher.Constraint("Horizontal", 3, 2, 52, 2),
    Sketcher.Constraint("Vertical", 7, 3, 13, 3),
    Sketcher.Constraint("Vertical", 5, 3, 15, 3),
    Sketcher.Constraint("Vertical", 1, 3, 19, 3),
    Sketcher.Constraint("Vertical", 41, 3, 51, 3),
    Sketcher.Constraint("Vertical", 33, 3, 59, 3),
    Sketcher.Constraint("Vertical", 29, 3, 63, 3),
    Sketcher.Constraint("Vertical", 27, 3, 65, 3),
    Sketcher.Constraint("Vertical", 35, 2, 56, 2),
    Sketcher.Constraint("Vertical", 21, 2, 70, 2),
    Sketcher.Constraint("Equal", 22, 34),
    Sketcher.Constraint("Equal", 20, 36),
    Sketcher.Constraint("Equal", 17, 39),
    Sketcher.Constraint("Equal", 14, 42),
    Sketcher.Constraint("Equal", 56, 2),
    Sketcher.Constraint("Equal", 70, 4),
    Sketcher.Constraint("Equal", 64, 10),
    Sketcher.Constraint("Equal", 4, 16),
    Sketcher.Constraint("Equal", 2, 18),
    Sketcher.Constraint("Equal", 53, 21),
    Sketcher.Constraint("Equal", 50, 24),
    Sketcher.Constraint("Equal", 35, 57),
    Sketcher.Constraint("Equal", 32, 60),
    Sketcher.Constraint("Equal", 12, 26),
    Sketcher.Constraint("Radius", 1, Q("1 mm")),
    Sketcher.Constraint("Radius", 5, Q("0.5 mm")),
    Sketcher.Constraint("DistanceX", 0, 1, 0, 2, Q("5.8 mm")),
    Sketcher.Constraint("DistanceX", 3, 2, 3, 1, Q("1.8 mm")),
    Sketcher.Constraint("DistanceX", -1, 1, 1, 3, Q("19 mm")),
    Sketcher.Constraint("DistanceX", 22, 1, 22, 2, Q("1.75 mm")),
    Sketcher.Constraint("DistanceX", -1, 1, 9, 3, Q("14.4 mm")),
    Sketcher.Constraint("Distance", 8, Q("3.12132 mm")),
])
pad2 = body.newObject("PartDesign::Pad", "Pad001")
pad2.Profile = sketch2
pad2.Length = 300
pad2.Reversed = True

doc.recompute()
